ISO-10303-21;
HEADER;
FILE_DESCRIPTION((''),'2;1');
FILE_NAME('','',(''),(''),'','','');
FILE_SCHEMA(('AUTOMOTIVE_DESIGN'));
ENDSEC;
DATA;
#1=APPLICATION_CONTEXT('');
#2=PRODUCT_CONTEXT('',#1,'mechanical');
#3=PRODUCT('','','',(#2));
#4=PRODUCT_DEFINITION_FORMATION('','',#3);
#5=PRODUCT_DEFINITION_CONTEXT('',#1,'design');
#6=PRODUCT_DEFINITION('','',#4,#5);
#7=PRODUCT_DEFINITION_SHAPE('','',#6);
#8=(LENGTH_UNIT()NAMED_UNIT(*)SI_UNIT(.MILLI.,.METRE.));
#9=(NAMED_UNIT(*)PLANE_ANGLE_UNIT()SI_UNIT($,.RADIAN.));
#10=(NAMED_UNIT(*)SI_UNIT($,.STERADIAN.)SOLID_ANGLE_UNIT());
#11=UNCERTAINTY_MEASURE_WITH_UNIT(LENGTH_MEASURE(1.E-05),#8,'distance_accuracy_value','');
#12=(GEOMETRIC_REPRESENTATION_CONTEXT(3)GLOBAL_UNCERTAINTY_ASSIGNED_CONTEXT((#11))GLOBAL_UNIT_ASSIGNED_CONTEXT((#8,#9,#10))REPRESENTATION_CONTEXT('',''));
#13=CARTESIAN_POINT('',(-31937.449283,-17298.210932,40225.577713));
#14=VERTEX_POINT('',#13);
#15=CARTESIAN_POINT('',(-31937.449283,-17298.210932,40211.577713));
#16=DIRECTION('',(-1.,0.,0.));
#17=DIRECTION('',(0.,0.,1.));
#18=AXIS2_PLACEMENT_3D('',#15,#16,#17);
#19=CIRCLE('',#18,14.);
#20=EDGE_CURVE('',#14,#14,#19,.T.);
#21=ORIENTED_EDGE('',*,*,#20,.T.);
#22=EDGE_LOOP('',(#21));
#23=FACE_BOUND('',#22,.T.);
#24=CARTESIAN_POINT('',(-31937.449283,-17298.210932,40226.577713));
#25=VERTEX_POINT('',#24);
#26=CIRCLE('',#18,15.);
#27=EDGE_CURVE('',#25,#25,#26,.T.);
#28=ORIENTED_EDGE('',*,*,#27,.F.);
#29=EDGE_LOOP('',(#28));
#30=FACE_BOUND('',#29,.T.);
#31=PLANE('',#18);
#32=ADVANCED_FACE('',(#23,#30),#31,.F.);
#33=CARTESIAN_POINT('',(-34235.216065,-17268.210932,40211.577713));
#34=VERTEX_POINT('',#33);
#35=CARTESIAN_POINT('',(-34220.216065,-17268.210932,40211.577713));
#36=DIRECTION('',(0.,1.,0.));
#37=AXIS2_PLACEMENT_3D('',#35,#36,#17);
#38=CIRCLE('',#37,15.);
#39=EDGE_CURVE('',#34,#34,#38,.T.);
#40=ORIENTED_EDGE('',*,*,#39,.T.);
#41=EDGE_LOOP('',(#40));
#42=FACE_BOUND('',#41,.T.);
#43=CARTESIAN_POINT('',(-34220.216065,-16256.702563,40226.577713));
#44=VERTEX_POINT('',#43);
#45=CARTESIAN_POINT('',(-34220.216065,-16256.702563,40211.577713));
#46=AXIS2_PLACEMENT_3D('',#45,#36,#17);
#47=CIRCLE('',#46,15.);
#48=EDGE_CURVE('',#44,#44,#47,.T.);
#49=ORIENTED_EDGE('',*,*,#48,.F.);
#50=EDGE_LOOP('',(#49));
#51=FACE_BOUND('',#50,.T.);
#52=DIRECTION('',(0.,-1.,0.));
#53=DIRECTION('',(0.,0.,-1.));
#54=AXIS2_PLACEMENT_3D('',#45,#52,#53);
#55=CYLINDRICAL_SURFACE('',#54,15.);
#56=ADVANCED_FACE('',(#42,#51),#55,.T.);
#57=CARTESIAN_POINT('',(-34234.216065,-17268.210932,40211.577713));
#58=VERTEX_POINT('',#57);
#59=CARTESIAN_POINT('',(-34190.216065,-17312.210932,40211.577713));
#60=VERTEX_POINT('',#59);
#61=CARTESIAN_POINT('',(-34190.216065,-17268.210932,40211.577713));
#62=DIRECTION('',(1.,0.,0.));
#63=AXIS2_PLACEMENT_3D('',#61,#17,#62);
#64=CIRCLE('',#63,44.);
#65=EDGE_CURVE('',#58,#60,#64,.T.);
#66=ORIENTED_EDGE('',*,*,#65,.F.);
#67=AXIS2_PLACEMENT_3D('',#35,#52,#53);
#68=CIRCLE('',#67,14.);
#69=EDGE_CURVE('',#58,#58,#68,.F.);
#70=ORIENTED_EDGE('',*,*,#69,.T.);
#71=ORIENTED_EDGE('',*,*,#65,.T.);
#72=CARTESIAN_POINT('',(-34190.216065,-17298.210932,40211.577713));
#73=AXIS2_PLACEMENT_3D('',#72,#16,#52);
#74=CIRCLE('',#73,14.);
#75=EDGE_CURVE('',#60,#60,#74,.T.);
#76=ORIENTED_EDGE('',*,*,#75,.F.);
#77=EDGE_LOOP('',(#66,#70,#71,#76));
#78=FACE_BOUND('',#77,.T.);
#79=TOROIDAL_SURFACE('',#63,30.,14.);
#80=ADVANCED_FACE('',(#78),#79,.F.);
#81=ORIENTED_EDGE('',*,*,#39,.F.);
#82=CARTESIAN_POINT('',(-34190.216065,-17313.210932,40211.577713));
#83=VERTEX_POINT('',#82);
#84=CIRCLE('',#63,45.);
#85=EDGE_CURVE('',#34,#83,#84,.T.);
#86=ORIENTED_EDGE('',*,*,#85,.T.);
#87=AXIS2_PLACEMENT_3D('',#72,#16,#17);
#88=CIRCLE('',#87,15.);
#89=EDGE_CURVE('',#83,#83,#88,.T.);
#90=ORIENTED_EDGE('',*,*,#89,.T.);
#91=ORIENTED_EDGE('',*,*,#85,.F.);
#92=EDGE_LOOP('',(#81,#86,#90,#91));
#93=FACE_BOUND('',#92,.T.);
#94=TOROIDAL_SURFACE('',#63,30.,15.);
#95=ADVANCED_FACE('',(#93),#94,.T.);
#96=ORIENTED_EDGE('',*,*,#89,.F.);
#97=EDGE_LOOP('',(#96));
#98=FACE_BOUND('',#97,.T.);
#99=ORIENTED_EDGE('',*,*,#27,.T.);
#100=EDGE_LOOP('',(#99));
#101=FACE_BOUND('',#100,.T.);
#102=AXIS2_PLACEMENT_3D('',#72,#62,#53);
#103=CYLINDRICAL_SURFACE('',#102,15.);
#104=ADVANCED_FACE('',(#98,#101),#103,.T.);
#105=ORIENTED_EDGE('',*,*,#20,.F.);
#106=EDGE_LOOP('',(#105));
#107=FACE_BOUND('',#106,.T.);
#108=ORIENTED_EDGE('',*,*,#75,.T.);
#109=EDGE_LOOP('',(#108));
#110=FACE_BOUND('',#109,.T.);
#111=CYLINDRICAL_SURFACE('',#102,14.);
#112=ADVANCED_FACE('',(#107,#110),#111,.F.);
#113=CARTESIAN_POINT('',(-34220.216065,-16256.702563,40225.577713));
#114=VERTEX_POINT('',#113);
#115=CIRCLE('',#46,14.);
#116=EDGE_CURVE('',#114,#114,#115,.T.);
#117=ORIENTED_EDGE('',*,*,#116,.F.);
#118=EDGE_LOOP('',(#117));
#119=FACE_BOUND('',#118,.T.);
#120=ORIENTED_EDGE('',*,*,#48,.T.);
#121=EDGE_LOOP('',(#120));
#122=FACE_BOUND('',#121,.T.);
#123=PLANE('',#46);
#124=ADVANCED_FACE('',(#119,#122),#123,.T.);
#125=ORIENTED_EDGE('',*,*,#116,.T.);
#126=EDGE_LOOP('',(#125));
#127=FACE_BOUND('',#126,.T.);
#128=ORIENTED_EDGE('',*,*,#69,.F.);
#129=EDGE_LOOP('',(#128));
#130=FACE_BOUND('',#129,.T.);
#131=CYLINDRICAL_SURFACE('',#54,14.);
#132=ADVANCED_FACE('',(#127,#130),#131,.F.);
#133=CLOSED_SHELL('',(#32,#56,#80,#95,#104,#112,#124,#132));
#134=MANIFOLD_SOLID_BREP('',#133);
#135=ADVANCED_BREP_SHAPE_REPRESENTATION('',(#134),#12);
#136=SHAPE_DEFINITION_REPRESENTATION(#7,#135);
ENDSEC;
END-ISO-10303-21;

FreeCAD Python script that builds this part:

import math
import FreeCAD as App
import Part
import Sketcher
from FreeCAD import Vector
Q = App.Units.Quantity

doc = App.newDocument("Part")
body = doc.addObject("PartDesign::Body", "Body")

# Sketch on XZ plane
sketch1 = body.newObject("Sketcher::SketchObject", "Sketch")
sketch1.AttachmentSupport = (doc.getObject("XZ_Plane"), [""])
sketch1.MapMode = "FlatFace"
sketch1.AttachmentOffset = App.Placement(Vector(0, 0, 16256.702563), App.Rotation())
sketch1.addGeometry(Part.Circle(Vector(-34220, 40212, 0), Vector(0, 0, 1), 15), False)
sketch1.addGeometry(Part.Circle(Vector(-34220, 40212, 0), Vector(0, 0, 1), 14), False)
sketch1.addConstraint(Sketcher.Constraint("Coincident", 1, 3, 0, 3))
sketch1.addConstraint(Sketcher.Constraint("Diameter", 0, Q("30 mm")))
sketch1.addConstraint(Sketcher.Constraint("Diameter", 1, Q("28 mm")))
sketch1.addConstraint(Sketcher.Constraint("DistanceX", 0, 3, -1, 1, Q("34220.216065 mm")))
sketch1.addConstraint(Sketcher.Constraint("DistanceY", -1, 1, 0, 3, Q("40211.577713 mm")))

# Sketch on XY plane
sketch2 = body.newObject("Sketcher::SketchObject", "Sketch001")
sketch2.AttachmentSupport = (doc.getObject("XY_Plane"), [""])
sketch2.MapMode = "FlatFace"
sketch2.AttachmentOffset = App.Placement(Vector(0, 0, 40211.577713), App.Rotation())
sketch2.addGeometry(Part.LineSegment(Vector(-34220.216065, -16256.702563, 0), Vector(-34220.216065, -17268.210932, 0)), False)
sketch2.addGeometry(Part.ArcOfCircle(Part.Circle(Vector(-34190.216065, -17268.210932, 0), Vector(0, 0, 1), 30), math.radians(180), math.radians(270)), False)
sketch2.addGeometry(Part.LineSegment(Vector(-34190.216065, -17298.210932, 0), Vector(-31937.449283, -17298.210932, 0)), False)
sketch2.addConstraint(Sketcher.Constraint("Tangent", 0, 2, 1, 1))
sketch2.addConstraint(Sketcher.Constraint("Tangent", 1, 2, 2, 1))
sketch2.addConstraint(Sketcher.Constraint("Vertical", 0))
sketch2.addConstraint(Sketcher.Constraint("Horizontal", 2))
sketch2.addConstraint(Sketcher.Constraint("Radius", 1, Q("30 mm")))
sketch2.addConstraint(Sketcher.Constraint("DistanceX", 2, 1, 2, 2, Q("2252.766781 mm")))
sketch2.addConstraint(Sketcher.Constraint("DistanceY", 0, 2, 0, 1, Q("1011.508369 mm")))
sketch2.addConstraint(Sketcher.Constraint("DistanceX", 1, 3, -1, 1, Q("34190.216065 mm")))
sketch2.addConstraint(Sketcher.Constraint("DistanceY", 1, 3, -1, 1, Q("17268.210932 mm")))
doc.recompute()

additivepipe = body.newObject("PartDesign::AdditivePipe", "AdditivePipe")
additivepipe.Profile = sketch1
additivepipe.Spine = (sketch2, ["Edge1", "Edge2", "Edge3"])

doc.recompute()
